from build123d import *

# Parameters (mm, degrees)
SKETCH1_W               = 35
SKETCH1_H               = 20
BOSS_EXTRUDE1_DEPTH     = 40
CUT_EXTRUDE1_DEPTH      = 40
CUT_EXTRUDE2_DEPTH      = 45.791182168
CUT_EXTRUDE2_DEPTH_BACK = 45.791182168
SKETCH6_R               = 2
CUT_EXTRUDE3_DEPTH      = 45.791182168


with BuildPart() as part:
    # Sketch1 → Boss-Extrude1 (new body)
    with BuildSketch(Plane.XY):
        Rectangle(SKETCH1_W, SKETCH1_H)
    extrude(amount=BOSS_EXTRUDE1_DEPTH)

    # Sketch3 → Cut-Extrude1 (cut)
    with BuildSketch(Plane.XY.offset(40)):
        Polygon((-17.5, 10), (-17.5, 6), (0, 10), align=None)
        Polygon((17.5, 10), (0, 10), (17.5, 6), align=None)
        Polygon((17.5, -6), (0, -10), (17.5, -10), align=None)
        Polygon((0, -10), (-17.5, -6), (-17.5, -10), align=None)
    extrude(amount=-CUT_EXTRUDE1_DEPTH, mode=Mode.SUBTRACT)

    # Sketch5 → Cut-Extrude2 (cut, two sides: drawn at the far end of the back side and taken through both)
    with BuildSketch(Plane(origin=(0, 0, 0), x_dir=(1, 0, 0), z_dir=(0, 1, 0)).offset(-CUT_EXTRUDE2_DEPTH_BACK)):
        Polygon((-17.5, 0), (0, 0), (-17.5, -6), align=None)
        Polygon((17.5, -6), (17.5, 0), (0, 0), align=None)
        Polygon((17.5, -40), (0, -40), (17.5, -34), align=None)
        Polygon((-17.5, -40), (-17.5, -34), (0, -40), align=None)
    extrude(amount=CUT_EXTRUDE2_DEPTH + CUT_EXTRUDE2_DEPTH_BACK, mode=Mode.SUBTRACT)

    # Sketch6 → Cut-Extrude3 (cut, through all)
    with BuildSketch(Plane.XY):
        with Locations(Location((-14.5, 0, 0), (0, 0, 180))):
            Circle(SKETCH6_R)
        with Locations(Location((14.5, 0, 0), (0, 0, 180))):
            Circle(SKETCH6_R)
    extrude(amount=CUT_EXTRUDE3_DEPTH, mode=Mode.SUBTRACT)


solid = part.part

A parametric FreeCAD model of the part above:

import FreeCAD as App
import Part
import Sketcher

V = App.Vector

doc = App.newDocument("Part")
body = doc.addObject("PartDesign::Body", "Body")

# Sketch on XY plane
sketch1 = body.newObject("Sketcher::SketchObject", "Sketch")
sketch1.AttachmentSupport = (doc.getObject("XY_Plane"), [""])
sketch1.MapMode = "FlatFace"
sketch1.addGeometry([
    Part.LineSegment(V(-18, 10, 0), V(-18, -10, 0)),
    Part.LineSegment(V(-18, -10, 0), V(18, -10, 0)),
    Part.LineSegment(V(18, -10, 0), V(18, 10, 0)),
    Part.LineSegment(V(18, 10, 0), V(-18, 10, 0)),
], False)
sketch1.addConstraint([
    Sketcher.Constraint("Coincident", 0, 2, 1, 1),
    Sketcher.Constraint("Coincident", 1, 2, 2, 1),
    Sketcher.Constraint("Coincident", 2, 2, 3, 1),
    Sketcher.Constraint("Coincident", 3, 2, 0, 1),
    Sketcher.Constraint("Vertical", 0),
    Sketcher.Constraint("Horizontal", 1),
    Sketcher.Constraint("Vertical", 2),
    Sketcher.Constraint("Horizontal", 3),
    Sketcher.Constraint("Symmetric", 0, 2, 2, 2, -1, 1),
    Sketcher.Constraint("DistanceX", 1, 1, 1, 2, 35.0),
    Sketcher.Constraint("DistanceY", 0, 2, 0, 1, 20.0),
])
pad1 = body.newObject("PartDesign::Pad", "Pad")
pad1.Profile = sketch1
pad1.Length = 40

# Sketch on XY plane
sketch2 = body.newObject("Sketcher::SketchObject", "Sketch001")
sketch2.AttachmentSupport = (doc.getObject("XY_Plane"), [""])
sketch2.MapMode = "FlatFace"
sketch2.AttachmentOffset = App.Placement(V(0, 0, 40), App.Rotation())
sketch2.addGeometry([
    Part.LineSegment(V(-17.5, 10, 0), V(-17.5, 6, 0)),  # 0
    Part.LineSegment(V(-17.5, 6, 0), V(0, 10, 0)),  # 1
    Part.LineSegment(V(0, 10, 0), V(-17.5, 10, 0)),  # 2
    Part.LineSegment(V(17.5, 10, 0), V(0, 10, 0)),  # 3
    Part.LineSegment(V(0, 10, 0), V(17.5, 6, 0)),  # 4
    Part.LineSegment(V(17.5, 6, 0), V(17.5, 10, 0)),  # 5
    Part.LineSegment(V(17.5, -6, 0), V(0, -10, 0)),  # 6
    Part.LineSegment(V(0, -10, 0), V(17.5, -10, 0)),  # 7
    Part.LineSegment(V(17.5, -10, 0), V(17.5, -6, 0)),  # 8
    Part.LineSegment(V(0, -10, 0), V(-17.5, -6, 0)),  # 9
    Part.LineSegment(V(-17.5, -6, 0), V(-17.5, -10, 0)),  # 10
    Part.LineSegment(V(-17.5, -10, 0), V(0, -10, 0)),  # 11
], False)
sketch2.addConstraint([
    Sketcher.Constraint("Coincident", 0, 2, 1, 1),
    Sketcher.Constraint("Coincident", 1, 2, 2, 1),
    Sketcher.Constraint("Coincident", 2, 2, 0, 1),
    Sketcher.Constraint("Coincident", 3, 2, 4, 1),
    Sketcher.Constraint("Coincident", 4, 2, 5, 1),
    Sketcher.Constraint("Coincident", 5, 2, 3, 1),
    Sketcher.Constraint("Coincident", 6, 2, 7, 1),
    Sketcher.Constraint("Coincident", 7, 2, 8, 1),
    Sketcher.Constraint("Coincident", 8, 2, 6, 1),
    Sketcher.Constraint("Coincident", 9, 2, 10, 1),
    Sketcher.Constraint("Coincident", 10, 2, 11, 1),
    Sketcher.Constraint("Coincident", 11, 2, 9, 1),
    Sketcher.Constraint("Vertical", 0),
    Sketcher.Constraint("Horizontal", 2),
    Sketcher.Constraint("Horizontal", 3),
    Sketcher.Constraint("Vertical", 5),
    Sketcher.Constraint("Horizontal", 7),
    Sketcher.Constraint("Vertical", 8),
    Sketcher.Constraint("Vertical", 10),
    Sketcher.Constraint("Horizontal", 11),
    Sketcher.Constraint("Coincident", 3, 2, 1, 2),
    Sketcher.Constraint("Coincident", 11, 2, 6, 2),
    Sketcher.Constraint("Symmetric", 1, 2, 6, 2, -1, 1),
    Sketcher.Constraint("Symmetric", 0, 2, 8, 2, -1, 1),
    Sketcher.Constraint("Symmetric", 4, 2, 9, 2, -1, 1),
    Sketcher.Constraint("Symmetric", 0, 2, 4, 2, -2),
    Sketcher.Constraint("PointOnObject", 1, 2, -2),
    Sketcher.Constraint("DistanceY", 0, 2, 0, 1, 4.0),
    Sketcher.Constraint("DistanceX", 2, 2, 2, 1, 17.5),
    Sketcher.Constraint("DistanceY", -1, 1, 0, 2, 6.0),
])
pocket1 = body.newObject("PartDesign::Pocket", "Pocket")
pocket1.Profile = sketch2
pocket1.Length = 40

# Sketch on XZ plane
sketch3 = body.newObject("Sketcher::SketchObject", "Sketch002")
sketch3.AttachmentSupport = (doc.getObject("XZ_Plane"), [""])
sketch3.MapMode = "FlatFace"
sketch3.addGeometry([
    Part.LineSegment(V(0, 0, 0), V(-18, 0, 0)),  # 0
    Part.LineSegment(V(-18, 0, 0), V(-18, 6, 0)),  # 1
    Part.LineSegment(V(-18, 6, 0), V(0, 0, 0)),  # 2
    Part.LineSegment(V(18, 6, 0), V(18, 0, 0)),  # 3
    Part.LineSegment(V(18, 0, 0), V(0, 0, 0)),  # 4
    Part.LineSegment(V(0, 0, 0), V(18, 6, 0)),  # 5
    Part.LineSegment(V(0, 40, 0), V(18, 40, 0)),  # 6
    Part.LineSegment(V(18, 40, 0), V(18, 34, 0)),  # 7
    Part.LineSegment(V(18, 34, 0), V(0, 40, 0)),  # 8
    Part.LineSegment(V(-18, 34, 0), V(-18, 40, 0)),  # 9
    Part.LineSegment(V(-18, 40, 0), V(0, 40, 0)),  # 10
    Part.LineSegment(V(0, 40, 0), V(-18, 34, 0)),  # 11
], False)
sketch3.addConstraint([
    Sketcher.Constraint("Coincident", 0, 2, 1, 1),
    Sketcher.Constraint("Coincident", 1, 2, 2, 1),
    Sketcher.Constraint("Coincident", 2, 2, 0, 1),
    Sketcher.Constraint("Coincident", 3, 2, 4, 1),
    Sketcher.Constraint("Coincident", 4, 2, 5, 1),
    Sketcher.Constraint("Coincident", 5, 2, 3, 1),
    Sketcher.Constraint("Coincident", 6, 2, 7, 1),
    Sketcher.Constraint("Coincident", 7, 2, 8, 1),
    Sketcher.Constraint("Coincident", 8, 2, 6, 1),
    Sketcher.Constraint("Coincident", 9, 2, 10, 1),
    Sketcher.Constraint("Coincident", 10, 2, 11, 1),
    Sketcher.Constraint("Coincident", 11, 2, 9, 1),
    Sketcher.Constraint("Horizontal", 0),
    Sketcher.Constraint("Vertical", 1),
    Sketcher.Constraint("Vertical", 3),
    Sketcher.Constraint("Horizontal", 4),
    Sketcher.Constraint("Horizontal", 6),
    Sketcher.Constraint("Vertical", 7),
    Sketcher.Constraint("Vertical", 9),
    Sketcher.Constraint("Horizontal", 10),
    Sketcher.Constraint("Coincident", 2, 2, -1, 1),
    Sketcher.Constraint("Coincident", 4, 2, -1, 1),
    Sketcher.Constraint("Coincident", 10, 2, 8, 2),
    Sketcher.Constraint("Symmetric", 1, 2, 5, 2, -2),
    Sketcher.Constraint("Symmetric", 7, 2, 11, 2, -2),
    Sketcher.Constraint("PointOnObject", 8, 2, -2),
    Sketcher.Constraint("Parallel", 2, 8),
    Sketcher.Constraint("Vertical", 5, 2, 6, 2),
    Sketcher.Constraint("DistanceY", 1, 1, 1, 2, 6.0),
    Sketcher.Constraint("DistanceX", 0, 2, 0, 1, 17.5),
    Sketcher.Constraint("DistanceY", -1, 1, 6, 2, 40.0),
])
pocket2 = body.newObject("PartDesign::Pocket", "Pocket001")
pocket2.Profile = sketch3
pocket2.Type = "ThroughAll"
pocket2.Midplane = True

# Sketch on XY plane
sketch4 = body.newObject("Sketcher::SketchObject", "Sketch003")
sketch4.AttachmentSupport = (doc.getObject("XY_Plane"), [""])
sketch4.MapMode = "FlatFace"
sketch4.addGeometry([
    Part.Circle(V(-14.5, 0, 0), V(0, 0, 1), 2),
    Part.Circle(V(14.5, 0, 0), V(0, 0, 1), 2),
], False)
sketch4.addConstraint([
    Sketcher.Constraint("Equal", 0, 1),
    Sketcher.Constraint("Symmetric", 0, 3, 1, 3, -1, 1),
    Sketcher.Constraint("PointOnObject", 0, 3, -1),
    Sketcher.Constraint("Diameter", 0, 4.0),
    Sketcher.Constraint("DistanceX", 0, 3, 1, 3, 29.0),
])
pocket3 = body.newObject("PartDesign::Pocket", "Pocket002")
pocket3.Profile = sketch4
pocket3.Type = "ThroughAll"
pocket3.Reversed = True

doc.recompute()
